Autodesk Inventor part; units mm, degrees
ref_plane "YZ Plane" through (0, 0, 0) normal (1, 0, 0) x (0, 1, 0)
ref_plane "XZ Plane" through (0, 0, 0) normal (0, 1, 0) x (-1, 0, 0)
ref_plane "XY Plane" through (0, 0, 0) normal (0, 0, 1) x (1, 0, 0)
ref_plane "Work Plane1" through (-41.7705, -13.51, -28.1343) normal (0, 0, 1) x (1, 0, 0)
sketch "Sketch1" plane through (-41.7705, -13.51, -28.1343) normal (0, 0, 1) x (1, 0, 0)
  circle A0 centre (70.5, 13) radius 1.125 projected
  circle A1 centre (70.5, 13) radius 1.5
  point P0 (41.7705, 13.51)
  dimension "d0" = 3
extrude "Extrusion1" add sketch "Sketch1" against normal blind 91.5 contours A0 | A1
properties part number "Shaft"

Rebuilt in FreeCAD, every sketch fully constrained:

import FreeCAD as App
import Part
import Sketcher
from FreeCAD import Vector

doc = App.newDocument("Part")
body = doc.addObject("PartDesign::Body", "Body")

# Sketch on XY plane
sketch1 = body.newObject("Sketcher::SketchObject", "Sketch")
sketch1.AttachmentSupport = (doc.getObject("XY_Plane"), [""])
sketch1.MapMode = "FlatFace"
sketch1.AttachmentOffset = App.Placement(Vector(0, 0, -28.1343), App.Rotation())
sketch1.addGeometry(Part.Circle(Vector(28.7, -0.5, 0), Vector(0, 0, 1), 1.5), False)
sketch1.addConstraint(Sketcher.Constraint("Diameter", 0, 3.0))
sketch1.addConstraint(Sketcher.Constraint("DistanceY", 0, 3, -1, 1, 0.51))
sketch1.addConstraint(Sketcher.Constraint("DistanceX", -1, 1, 0, 3, 28.7295))
pad1 = body.newObject("PartDesign::Pad", "Pad")
pad1.Profile = sketch1
pad1.Length = 91.5
pad1.Reversed = True

doc.recompute()
